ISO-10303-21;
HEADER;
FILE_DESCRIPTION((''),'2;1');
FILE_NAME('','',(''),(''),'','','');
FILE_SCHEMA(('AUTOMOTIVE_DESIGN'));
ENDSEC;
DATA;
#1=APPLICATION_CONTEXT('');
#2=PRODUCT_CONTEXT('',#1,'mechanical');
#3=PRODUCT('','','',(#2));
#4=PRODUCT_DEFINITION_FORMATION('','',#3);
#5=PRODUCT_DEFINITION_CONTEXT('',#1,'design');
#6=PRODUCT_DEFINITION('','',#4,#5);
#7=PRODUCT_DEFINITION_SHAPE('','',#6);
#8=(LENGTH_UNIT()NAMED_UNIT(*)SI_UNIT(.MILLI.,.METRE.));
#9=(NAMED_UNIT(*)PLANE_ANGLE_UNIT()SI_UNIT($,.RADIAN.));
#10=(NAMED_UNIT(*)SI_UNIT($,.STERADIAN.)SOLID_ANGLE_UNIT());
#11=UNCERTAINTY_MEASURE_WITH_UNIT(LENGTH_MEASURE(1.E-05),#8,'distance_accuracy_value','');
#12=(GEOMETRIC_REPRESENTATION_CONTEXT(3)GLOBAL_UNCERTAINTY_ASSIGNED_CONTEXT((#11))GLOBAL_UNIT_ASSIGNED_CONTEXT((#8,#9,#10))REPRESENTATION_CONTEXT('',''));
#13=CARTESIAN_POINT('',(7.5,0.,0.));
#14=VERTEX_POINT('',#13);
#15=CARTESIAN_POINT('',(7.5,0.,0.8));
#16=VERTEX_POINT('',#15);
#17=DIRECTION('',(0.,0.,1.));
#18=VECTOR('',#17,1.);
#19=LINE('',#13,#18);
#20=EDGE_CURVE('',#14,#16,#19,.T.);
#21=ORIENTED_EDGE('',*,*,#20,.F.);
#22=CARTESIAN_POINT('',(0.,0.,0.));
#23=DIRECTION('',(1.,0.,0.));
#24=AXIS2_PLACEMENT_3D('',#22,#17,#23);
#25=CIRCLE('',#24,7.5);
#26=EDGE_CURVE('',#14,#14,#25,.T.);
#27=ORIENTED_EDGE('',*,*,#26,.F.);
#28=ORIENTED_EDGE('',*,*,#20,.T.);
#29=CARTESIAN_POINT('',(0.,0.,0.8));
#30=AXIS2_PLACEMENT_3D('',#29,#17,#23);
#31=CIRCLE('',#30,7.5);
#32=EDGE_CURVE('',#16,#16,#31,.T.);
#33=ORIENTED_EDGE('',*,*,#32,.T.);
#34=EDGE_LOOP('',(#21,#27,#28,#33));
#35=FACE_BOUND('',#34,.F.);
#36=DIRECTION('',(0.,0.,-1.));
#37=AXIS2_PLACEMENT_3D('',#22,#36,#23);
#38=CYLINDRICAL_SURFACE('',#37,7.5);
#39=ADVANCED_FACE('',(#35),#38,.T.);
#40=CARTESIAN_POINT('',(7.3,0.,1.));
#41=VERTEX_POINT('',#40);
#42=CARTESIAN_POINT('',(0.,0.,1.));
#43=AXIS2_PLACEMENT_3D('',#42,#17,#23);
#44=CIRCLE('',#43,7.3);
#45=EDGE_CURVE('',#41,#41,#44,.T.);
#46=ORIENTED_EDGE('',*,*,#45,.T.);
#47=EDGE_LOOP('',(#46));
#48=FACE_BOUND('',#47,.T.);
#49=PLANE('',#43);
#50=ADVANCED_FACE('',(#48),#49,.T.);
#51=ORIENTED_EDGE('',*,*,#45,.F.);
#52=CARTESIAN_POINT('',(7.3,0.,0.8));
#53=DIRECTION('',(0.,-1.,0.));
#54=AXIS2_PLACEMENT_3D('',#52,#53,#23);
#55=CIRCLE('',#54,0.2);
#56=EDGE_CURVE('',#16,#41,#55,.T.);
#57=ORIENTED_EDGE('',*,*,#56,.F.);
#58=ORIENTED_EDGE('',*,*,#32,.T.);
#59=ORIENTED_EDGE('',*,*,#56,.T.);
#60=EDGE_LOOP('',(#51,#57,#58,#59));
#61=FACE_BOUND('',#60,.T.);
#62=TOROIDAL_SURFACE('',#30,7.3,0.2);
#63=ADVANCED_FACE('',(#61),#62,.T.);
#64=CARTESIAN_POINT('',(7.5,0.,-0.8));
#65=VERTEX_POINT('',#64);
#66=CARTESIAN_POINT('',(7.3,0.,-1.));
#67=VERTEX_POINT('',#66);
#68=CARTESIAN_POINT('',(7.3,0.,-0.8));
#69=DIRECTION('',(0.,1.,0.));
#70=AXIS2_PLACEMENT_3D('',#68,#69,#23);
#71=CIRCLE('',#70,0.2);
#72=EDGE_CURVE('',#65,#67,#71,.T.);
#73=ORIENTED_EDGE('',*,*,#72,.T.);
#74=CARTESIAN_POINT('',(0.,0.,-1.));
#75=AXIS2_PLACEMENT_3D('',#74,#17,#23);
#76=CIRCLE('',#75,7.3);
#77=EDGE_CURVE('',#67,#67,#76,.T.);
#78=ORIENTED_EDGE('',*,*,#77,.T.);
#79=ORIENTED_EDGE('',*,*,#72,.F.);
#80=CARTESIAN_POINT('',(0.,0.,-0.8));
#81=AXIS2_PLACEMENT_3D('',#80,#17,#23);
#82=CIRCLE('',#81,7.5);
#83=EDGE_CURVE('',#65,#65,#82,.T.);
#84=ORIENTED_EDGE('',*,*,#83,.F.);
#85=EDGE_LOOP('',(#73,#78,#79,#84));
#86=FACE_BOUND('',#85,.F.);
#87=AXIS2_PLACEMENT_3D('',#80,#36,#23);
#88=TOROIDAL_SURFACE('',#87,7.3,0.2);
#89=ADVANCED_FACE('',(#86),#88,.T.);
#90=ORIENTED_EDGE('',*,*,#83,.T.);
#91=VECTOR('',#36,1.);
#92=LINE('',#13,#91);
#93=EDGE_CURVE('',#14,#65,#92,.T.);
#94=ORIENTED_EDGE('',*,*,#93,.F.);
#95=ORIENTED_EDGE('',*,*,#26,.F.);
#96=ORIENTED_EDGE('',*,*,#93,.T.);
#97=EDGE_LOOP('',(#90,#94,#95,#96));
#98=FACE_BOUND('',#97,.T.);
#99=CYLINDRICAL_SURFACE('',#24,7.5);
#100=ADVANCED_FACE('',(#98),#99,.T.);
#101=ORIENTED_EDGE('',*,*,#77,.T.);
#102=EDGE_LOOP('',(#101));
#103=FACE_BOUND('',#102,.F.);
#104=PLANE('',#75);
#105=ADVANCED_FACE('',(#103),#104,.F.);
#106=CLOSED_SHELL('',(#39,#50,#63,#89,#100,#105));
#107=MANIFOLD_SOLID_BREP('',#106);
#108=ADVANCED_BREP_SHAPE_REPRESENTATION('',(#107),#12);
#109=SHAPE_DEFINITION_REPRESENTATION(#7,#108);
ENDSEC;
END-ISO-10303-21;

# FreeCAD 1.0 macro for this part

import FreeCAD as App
import Part
import Sketcher


def edges_at(feature, points):
    """Names of the edges that pass closest to the given points."""
    edges = feature.Shape.Edges
    near = lambda p: min(range(len(edges)), key=lambda i: edges[i].distToShape(Part.Vertex(*p))[0])
    return sorted({f"Edge{near(p) + 1}" for p in points})

doc = App.newDocument("Part")
body = doc.addObject("PartDesign::Body", "Body")

# Sketch on XY plane
sketch1 = body.newObject("Sketcher::SketchObject", "Sketch")
sketch1.AttachmentSupport = (doc.getObject("XY_Plane"), [""])
sketch1.MapMode = "FlatFace"
sketch1.addGeometry(Part.Circle(App.Vector(0, 0, 0), App.Vector(0, 0, 1), 7.5), False)
sketch1.addConstraint([
    Sketcher.Constraint("Coincident", 0, 3, -1, 1),
    Sketcher.Constraint("Diameter", 0, 15.0),
])
pad1 = body.newObject("PartDesign::Pad", "Pad")
pad1.Profile = sketch1
pad1.Length = 2
pad1.Midplane = True
doc.recompute()

fillet = body.newObject("PartDesign::Fillet", "Fillet")
fillet.Base = (pad1, edges_at(pad1, [(-7.5, 0, -1), (-7.5, 0, 1)]))
fillet.Radius = 0.2

doc.recompute()
